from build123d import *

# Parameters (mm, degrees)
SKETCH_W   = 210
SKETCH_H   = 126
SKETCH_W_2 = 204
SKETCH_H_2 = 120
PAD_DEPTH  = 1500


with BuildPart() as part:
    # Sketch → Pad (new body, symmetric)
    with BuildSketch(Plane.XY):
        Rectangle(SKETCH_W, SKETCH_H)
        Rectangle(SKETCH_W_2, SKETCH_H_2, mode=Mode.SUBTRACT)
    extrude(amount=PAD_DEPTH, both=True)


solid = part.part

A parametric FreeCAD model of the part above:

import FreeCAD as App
import Part
import Sketcher
Q = App.Units.Quantity

doc = App.newDocument("Part")
params = doc.addObject("Spreadsheet::Sheet", "Params")
for row, (alias, value) in enumerate([
    ("sketch1_width", "210 mm"),
    ("sketch1_width2", "204 mm"),
    ("sketch1_height", "126 mm"),
    ("sketch1_height2", "120 mm"),
    ("pad1_length", "3000 mm"),
], start=1):
    params.set(f"A{row}", alias)
    params.set(f"B{row}", "=" + value)
    params.setAlias(f"B{row}", alias)

body = doc.addObject("PartDesign::Body", "Body")

sketch1 = body.newObject("Sketcher::SketchObject", "Sketch")
sketch1.AttachmentSupport = (doc.getObject("XY_Plane"), [""])
sketch1.MapMode = "FlatFace"
sketch1.addGeometry(Part.LineSegment(App.Vector(-105, 63, 0), App.Vector(-105, -63, 0)), False)
sketch1.addGeometry(Part.LineSegment(App.Vector(-105, -63, 0), App.Vector(105, -63, 0)), False)
sketch1.addGeometry(Part.LineSegment(App.Vector(105, -63, 0), App.Vector(105, 63, 0)), False)
sketch1.addGeometry(Part.LineSegment(App.Vector(105, 63, 0), App.Vector(-105, 63, 0)), False)
sketch1.addGeometry(Part.LineSegment(App.Vector(102, -60, 0), App.Vector(-102, -60, 0)), False)
sketch1.addGeometry(Part.LineSegment(App.Vector(-102, -60, 0), App.Vector(-102, 60, 0)), False)
sketch1.addGeometry(Part.LineSegment(App.Vector(-102, 60, 0), App.Vector(102, 60, 0)), False)
sketch1.addGeometry(Part.LineSegment(App.Vector(102, 60, 0), App.Vector(102, -60, 0)), False)
sketch1.addConstraint(Sketcher.Constraint("Coincident", 0, 2, 1, 1))
sketch1.addConstraint(Sketcher.Constraint("Coincident", 1, 2, 2, 1))
sketch1.addConstraint(Sketcher.Constraint("Coincident", 2, 2, 3, 1))
sketch1.addConstraint(Sketcher.Constraint("Coincident", 3, 2, 0, 1))
sketch1.addConstraint(Sketcher.Constraint("Coincident", 4, 2, 5, 1))
sketch1.addConstraint(Sketcher.Constraint("Coincident", 5, 2, 6, 1))
sketch1.addConstraint(Sketcher.Constraint("Coincident", 6, 2, 7, 1))
sketch1.addConstraint(Sketcher.Constraint("Coincident", 7, 2, 4, 1))
sketch1.addConstraint(Sketcher.Constraint("Vertical", 0))
sketch1.addConstraint(Sketcher.Constraint("Horizontal", 1))
sketch1.addConstraint(Sketcher.Constraint("Vertical", 2))
sketch1.addConstraint(Sketcher.Constraint("Horizontal", 3))
sketch1.addConstraint(Sketcher.Constraint("Horizontal", 4))
sketch1.addConstraint(Sketcher.Constraint("Vertical", 5))
sketch1.addConstraint(Sketcher.Constraint("Horizontal", 6))
sketch1.addConstraint(Sketcher.Constraint("Vertical", 7))
sketch1.addConstraint(Sketcher.Constraint("Symmetric", 0, 2, 2, 2, -1, 1))
sketch1.addConstraint(Sketcher.Constraint("Symmetric", 4, 2, 6, 2, -1, 1))
sketch1.addConstraint(Sketcher.Constraint("DistanceX", 1, 1, 1, 2, Q("210 mm")))
sketch1.addConstraint(Sketcher.Constraint("DistanceX", 4, 2, 4, 1, Q("204 mm")))
sketch1.addConstraint(Sketcher.Constraint("DistanceY", 0, 2, 0, 1, Q("126 mm")))
sketch1.addConstraint(Sketcher.Constraint("DistanceY", 5, 1, 5, 2, Q("120 mm")))
sketch1.setExpression("Constraints[18]", "Params.sketch1_width")
sketch1.setExpression("Constraints[19]", "Params.sketch1_width2")
sketch1.setExpression("Constraints[20]", "Params.sketch1_height")
sketch1.setExpression("Constraints[21]", "Params.sketch1_height2")
pad1 = body.newObject("PartDesign::Pad", "Pad")
pad1.Profile = sketch1
pad1.setExpression("Length", "Params.pad1_length")
pad1.Midplane = True

doc.recompute()
